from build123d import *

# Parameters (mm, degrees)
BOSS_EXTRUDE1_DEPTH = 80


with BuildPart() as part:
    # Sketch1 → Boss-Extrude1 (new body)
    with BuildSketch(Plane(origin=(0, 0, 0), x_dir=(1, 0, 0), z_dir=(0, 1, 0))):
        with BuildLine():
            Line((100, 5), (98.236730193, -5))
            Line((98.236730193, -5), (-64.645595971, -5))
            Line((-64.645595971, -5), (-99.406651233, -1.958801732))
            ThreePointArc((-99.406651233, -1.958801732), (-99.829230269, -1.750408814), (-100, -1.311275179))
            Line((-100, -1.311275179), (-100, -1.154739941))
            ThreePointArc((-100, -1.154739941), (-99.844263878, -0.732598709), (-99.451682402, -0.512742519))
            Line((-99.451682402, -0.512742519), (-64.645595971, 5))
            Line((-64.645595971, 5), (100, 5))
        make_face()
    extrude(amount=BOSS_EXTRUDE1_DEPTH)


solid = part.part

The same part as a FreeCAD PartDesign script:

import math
import FreeCAD as App
import Part
import Sketcher
Q = App.Units.Quantity

doc = App.newDocument("Part")
body = doc.addObject("PartDesign::Body", "Body")

sketch1 = doc.addObject("Sketcher::SketchObject", "Sketch")
body.addObject(sketch1)
sketch1.AttachmentSupport = (doc.XZ_Plane, [""])
sketch1.MapMode = "FlatFace"
sketch1.addGeometry([
    Part.LineSegment(App.Vector(98.24, 5, 0), App.Vector(100, -5, 0)),
    Part.LineSegment(App.Vector(100, -5, 0), App.Vector(-64.65, -5, 0)),
    Part.LineSegment(App.Vector(-64.65, -5, 0), App.Vector(-99.45, 0.51, 0)),
    Part.ArcOfCircle(Part.Circle(App.Vector(-99.35, 1.15, 0), App.Vector(0, 0, 1), 0.65), math.radians(180), math.radians(261)),
    Part.LineSegment(App.Vector(-100, 1.15, 0), App.Vector(-100, 1.31, 0)),
    Part.ArcOfCircle(Part.Circle(App.Vector(-99.35, 1.31, 0), App.Vector(0, 0, 1), 0.65), math.radians(95), math.radians(180)),
    Part.LineSegment(App.Vector(-99.41, 1.96, 0), App.Vector(-64.65, 5, 0)),
    Part.LineSegment(App.Vector(-64.65, 5, 0), App.Vector(98.24, 5, 0)),
], False)
sketch1.addConstraint([
    Sketcher.Constraint("Coincident", 0, 2, 1, 1),
    Sketcher.Constraint("Coincident", 1, 2, 2, 1),
    Sketcher.Constraint("Tangent", 2, 2, 3, 2),
    Sketcher.Constraint("Tangent", 3, 1, 4, 1),
    Sketcher.Constraint("Tangent", 4, 2, 5, 2),
    Sketcher.Constraint("Tangent", 5, 1, 6, 1),
    Sketcher.Constraint("Coincident", 6, 2, 7, 1),
    Sketcher.Constraint("Coincident", 7, 2, 0, 1),
    Sketcher.Constraint("Horizontal", 1),
    Sketcher.Constraint("Vertical", 4),
    Sketcher.Constraint("Horizontal", 7),
    Sketcher.Constraint("Equal", 3, 5),
    Sketcher.Constraint("Symmetric", 1, 2, 6, 2, -1),
    Sketcher.Constraint("Angle", 0, Q("-80 deg")),
    Sketcher.Constraint("Angle", 2, Q("171 deg")),
    Sketcher.Constraint("Angle", 6, Q("5 deg")),
    Sketcher.Constraint("Radius", 3, 0.65),
    Sketcher.Constraint("DistanceX", -1, 1, 0, 2, 100.0),
    Sketcher.Constraint("DistanceY", 0, 2, -1, 1, 5.0),
    Sketcher.Constraint("DistanceX", 3, 1, -1, 1, 100.0),
    Sketcher.Constraint("DistanceY", -1, 1, 5, 1, 1.958802),
])
pad1 = doc.addObject("PartDesign::Pad", "Pad")
body.addObject(pad1)
pad1.Profile = sketch1
pad1.Length = 80
pad1.Reversed = True

doc.recompute()
